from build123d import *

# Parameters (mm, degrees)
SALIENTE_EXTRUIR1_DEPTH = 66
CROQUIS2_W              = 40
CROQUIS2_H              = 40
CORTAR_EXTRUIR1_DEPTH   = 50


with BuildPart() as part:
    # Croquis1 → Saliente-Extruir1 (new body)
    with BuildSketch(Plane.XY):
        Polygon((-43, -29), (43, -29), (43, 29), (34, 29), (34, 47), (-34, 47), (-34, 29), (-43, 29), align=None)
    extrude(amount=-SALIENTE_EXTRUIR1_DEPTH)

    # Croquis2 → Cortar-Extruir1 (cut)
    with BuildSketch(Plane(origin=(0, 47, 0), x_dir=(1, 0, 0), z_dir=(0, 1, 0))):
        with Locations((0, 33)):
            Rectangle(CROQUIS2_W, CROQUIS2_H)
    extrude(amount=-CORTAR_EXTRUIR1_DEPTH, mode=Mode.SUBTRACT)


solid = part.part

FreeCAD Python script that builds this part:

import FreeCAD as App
import Part
import Sketcher


def add_polygon(sketch, points):
    """Adds a closed chain of lines whose ends are joined by coincident constraints."""
    first, n = sketch.GeometryCount, len(points)
    for a, b in zip(points, points[1:] + points[:1]):
        sketch.addGeometry(Part.LineSegment(App.Vector(*a, 0), App.Vector(*b, 0)), False)
    for i in range(n):
        sketch.addConstraint(Sketcher.Constraint("Coincident", first + i, 2, first + (i + 1) % n, 1))

doc = App.newDocument("Part")
params = doc.addObject("Spreadsheet::Sheet", "Params")
for row, (alias, value) in enumerate([
    ("sketch1_width", "86 mm"),
    ("sketch1_width2", "9 mm"),
    ("sketch1_height", "58 mm"),
    ("sketch1_height2", "18 mm"),
    ("pad1_length", "66 mm"),
    ("sketch2_width", "40 mm"),
    ("pocket1_length", "50 mm"),
], start=1):
    params.set(f"A{row}", alias)
    params.set(f"B{row}", "=" + value)
    params.setAlias(f"B{row}", alias)

body = doc.addObject("PartDesign::Body", "Body")

# Sketch on XY plane
sketch1 = doc.addObject("Sketcher::SketchObject", "Sketch")
body.addObject(sketch1)
sketch1.AttachmentSupport = (doc.XY_Plane, [""])
sketch1.MapMode = "FlatFace"
add_polygon(sketch1, [(-43, -29), (43, -29), (43, 29), (34, 29), (34, 47), (-34, 47), (-34, 29), (-43, 29)])  # lines 0-7
sketch1.addConstraint([
    Sketcher.Constraint("Horizontal", 0),
    Sketcher.Constraint("Vertical", 1),
    Sketcher.Constraint("Horizontal", 2),
    Sketcher.Constraint("Vertical", 3),
    Sketcher.Constraint("Horizontal", 4),
    Sketcher.Constraint("Vertical", 5),
    Sketcher.Constraint("Horizontal", 6),
    Sketcher.Constraint("Vertical", 7),
    Sketcher.Constraint("Symmetric", 0, 2, 6, 2, -1, 1),
    Sketcher.Constraint("Symmetric", 2, 2, 5, 2, -2),
    Sketcher.Constraint("DistanceX", 0, 1, 0, 2, 86.0),
    Sketcher.Constraint("DistanceX", 2, 2, 2, 1, 9.0),
    Sketcher.Constraint("DistanceY", 1, 1, 1, 2, 58.0),
    Sketcher.Constraint("DistanceY", 3, 1, 3, 2, 18.0),
])
sketch1.setExpression("Constraints[18]", "Params.sketch1_width")
sketch1.setExpression("Constraints[19]", "Params.sketch1_width2")
sketch1.setExpression("Constraints[20]", "Params.sketch1_height")
sketch1.setExpression("Constraints[21]", "Params.sketch1_height2")
pad1 = doc.addObject("PartDesign::Pad", "Pad")
body.addObject(pad1)
pad1.Profile = sketch1
pad1.setExpression("Length", "Params.pad1_length")
pad1.Reversed = True

# Sketch on XZ plane
sketch2 = doc.addObject("Sketcher::SketchObject", "Sketch001")
body.addObject(sketch2)
sketch2.AttachmentSupport = (doc.XZ_Plane, [""])
sketch2.MapMode = "FlatFace"
sketch2.AttachmentOffset = App.Placement(App.Vector(0, 0, -47), App.Rotation())
add_polygon(sketch2, [(-20, -53), (-20, -13), (20, -13), (20, -53)])  # lines 0-3
sketch2.addConstraint([
    Sketcher.Constraint("Vertical", 0),
    Sketcher.Constraint("Horizontal", 1),
    Sketcher.Constraint("Vertical", 2),
    Sketcher.Constraint("Horizontal", 3),
    Sketcher.Constraint("Equal", 3, 0),
    Sketcher.Constraint("DistanceX", 1, 1, 1, 2, 40.0),
    Sketcher.Constraint("DistanceX", 0, 2, -1, 1, 20.0),
    Sketcher.Constraint("DistanceY", 0, 2, -1, 1, 13.0),
])
sketch2.setExpression("Constraints[9]", "Params.sketch2_width")
pocket1 = doc.addObject("PartDesign::Pocket", "Pocket")
body.addObject(pocket1)
pocket1.Profile = sketch2
pocket1.setExpression("Length", "Params.pocket1_length")
pocket1.Reversed = True

doc.recompute()
